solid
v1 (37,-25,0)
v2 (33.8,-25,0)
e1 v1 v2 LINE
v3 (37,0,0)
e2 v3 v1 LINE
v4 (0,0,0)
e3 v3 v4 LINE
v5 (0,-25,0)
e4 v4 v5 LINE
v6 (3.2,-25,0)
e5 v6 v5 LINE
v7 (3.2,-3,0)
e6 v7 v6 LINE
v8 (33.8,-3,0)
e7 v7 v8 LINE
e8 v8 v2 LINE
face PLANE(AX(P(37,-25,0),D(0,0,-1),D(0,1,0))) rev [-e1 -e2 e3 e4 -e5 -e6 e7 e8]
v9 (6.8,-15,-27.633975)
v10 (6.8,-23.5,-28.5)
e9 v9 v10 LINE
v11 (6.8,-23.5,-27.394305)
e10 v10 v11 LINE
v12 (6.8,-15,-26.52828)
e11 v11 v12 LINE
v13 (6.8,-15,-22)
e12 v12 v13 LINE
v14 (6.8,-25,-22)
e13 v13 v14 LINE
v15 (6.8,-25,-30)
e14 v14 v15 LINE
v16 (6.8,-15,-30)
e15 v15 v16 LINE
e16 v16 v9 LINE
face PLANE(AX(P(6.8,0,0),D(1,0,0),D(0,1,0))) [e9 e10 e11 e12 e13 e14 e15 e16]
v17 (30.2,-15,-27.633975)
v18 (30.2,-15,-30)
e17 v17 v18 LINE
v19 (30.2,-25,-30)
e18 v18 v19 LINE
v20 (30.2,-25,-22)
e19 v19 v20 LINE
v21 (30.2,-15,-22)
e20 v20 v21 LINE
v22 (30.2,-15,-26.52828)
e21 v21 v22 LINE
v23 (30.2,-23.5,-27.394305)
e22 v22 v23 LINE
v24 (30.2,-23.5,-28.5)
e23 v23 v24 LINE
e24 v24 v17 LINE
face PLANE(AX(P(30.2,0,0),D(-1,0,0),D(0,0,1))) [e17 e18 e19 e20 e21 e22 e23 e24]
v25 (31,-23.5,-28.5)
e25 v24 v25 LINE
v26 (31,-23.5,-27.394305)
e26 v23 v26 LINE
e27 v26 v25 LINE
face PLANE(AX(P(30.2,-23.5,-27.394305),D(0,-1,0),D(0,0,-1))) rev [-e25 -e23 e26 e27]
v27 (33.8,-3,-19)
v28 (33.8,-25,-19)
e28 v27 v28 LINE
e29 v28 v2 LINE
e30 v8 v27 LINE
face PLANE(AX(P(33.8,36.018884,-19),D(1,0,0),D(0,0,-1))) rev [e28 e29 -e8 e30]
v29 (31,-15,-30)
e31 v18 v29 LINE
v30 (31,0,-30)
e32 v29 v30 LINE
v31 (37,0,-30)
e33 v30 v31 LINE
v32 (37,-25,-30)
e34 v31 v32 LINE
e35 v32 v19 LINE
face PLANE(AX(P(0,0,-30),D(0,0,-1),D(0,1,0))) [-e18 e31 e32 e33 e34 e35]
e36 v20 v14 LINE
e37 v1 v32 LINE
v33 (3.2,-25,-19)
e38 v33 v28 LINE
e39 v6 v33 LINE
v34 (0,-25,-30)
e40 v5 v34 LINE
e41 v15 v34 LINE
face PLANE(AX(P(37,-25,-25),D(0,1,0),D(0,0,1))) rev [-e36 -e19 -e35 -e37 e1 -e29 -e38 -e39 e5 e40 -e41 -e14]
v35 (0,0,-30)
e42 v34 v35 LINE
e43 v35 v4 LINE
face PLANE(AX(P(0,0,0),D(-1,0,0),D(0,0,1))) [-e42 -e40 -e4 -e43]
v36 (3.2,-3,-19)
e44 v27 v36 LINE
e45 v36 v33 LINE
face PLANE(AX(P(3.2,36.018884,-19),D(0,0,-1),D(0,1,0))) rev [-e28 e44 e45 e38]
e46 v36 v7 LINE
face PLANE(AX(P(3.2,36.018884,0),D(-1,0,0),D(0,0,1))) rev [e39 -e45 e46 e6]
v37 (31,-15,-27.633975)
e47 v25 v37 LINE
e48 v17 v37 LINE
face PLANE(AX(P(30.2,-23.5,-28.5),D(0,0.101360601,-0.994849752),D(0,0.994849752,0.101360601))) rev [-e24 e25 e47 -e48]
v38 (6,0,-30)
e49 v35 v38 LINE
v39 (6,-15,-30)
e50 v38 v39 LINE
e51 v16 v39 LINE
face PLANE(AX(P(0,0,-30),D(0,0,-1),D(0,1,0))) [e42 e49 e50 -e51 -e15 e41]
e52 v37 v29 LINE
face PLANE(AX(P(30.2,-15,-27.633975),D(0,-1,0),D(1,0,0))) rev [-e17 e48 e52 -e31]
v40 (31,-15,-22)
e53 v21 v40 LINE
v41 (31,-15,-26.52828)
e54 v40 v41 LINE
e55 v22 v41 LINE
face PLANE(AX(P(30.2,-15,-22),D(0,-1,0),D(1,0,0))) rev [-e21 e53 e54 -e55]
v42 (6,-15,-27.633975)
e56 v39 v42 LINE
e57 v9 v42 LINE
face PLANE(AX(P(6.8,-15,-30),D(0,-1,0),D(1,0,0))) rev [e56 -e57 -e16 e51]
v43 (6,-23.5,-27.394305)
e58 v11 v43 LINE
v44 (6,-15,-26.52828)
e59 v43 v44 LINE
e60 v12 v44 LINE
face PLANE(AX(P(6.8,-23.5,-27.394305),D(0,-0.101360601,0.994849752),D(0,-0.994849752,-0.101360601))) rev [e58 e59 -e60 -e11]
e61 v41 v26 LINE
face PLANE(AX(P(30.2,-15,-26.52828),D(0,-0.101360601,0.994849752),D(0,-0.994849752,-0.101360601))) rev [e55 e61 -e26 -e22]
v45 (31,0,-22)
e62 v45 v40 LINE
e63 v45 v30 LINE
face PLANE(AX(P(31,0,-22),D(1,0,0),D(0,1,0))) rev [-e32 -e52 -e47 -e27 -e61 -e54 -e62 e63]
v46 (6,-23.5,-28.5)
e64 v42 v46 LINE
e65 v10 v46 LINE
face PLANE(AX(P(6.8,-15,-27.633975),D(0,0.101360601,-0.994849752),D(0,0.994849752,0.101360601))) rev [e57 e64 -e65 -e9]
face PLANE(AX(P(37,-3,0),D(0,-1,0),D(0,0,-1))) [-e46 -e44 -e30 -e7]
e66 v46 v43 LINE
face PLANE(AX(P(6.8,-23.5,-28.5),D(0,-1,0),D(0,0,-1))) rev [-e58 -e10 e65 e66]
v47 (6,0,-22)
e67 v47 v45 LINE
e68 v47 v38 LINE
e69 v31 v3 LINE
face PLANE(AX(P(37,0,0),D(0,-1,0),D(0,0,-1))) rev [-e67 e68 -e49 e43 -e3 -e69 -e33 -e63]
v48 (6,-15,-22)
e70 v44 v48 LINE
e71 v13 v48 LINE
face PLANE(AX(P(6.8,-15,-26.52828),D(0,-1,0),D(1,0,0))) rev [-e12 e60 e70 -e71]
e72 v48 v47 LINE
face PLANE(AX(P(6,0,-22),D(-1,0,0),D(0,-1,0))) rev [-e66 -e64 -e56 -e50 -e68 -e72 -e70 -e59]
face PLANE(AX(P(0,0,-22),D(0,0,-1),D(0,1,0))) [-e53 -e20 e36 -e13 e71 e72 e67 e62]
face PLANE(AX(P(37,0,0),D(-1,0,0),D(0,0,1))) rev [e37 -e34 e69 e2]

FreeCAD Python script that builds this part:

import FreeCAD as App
import Part
import Sketcher
from FreeCAD import Vector

doc = App.newDocument("Part")
body = doc.addObject("PartDesign::Body", "Body")

sketch1 = doc.addObject("Sketcher::SketchObject", "Sketch")
body.addObject(sketch1)
sketch1.AttachmentSupport = (doc.YZ_Plane, [""])
sketch1.MapMode = "FlatFace"
sketch1.addGeometry([
    Part.LineSegment(Vector(0, 0, 0), Vector(-25, 0, 0)),
    Part.LineSegment(Vector(-25, 0, 0), Vector(-25, -25, 0)),
    Part.LineSegment(Vector(-25, -25, 0), Vector(0, -25, 0)),
    Part.LineSegment(Vector(0, -25, 0), Vector(0, 0, 0)),
], False)
sketch1.addConstraint([
    Sketcher.Constraint("Coincident", 0, 2, 1, 1),
    Sketcher.Constraint("Coincident", 1, 2, 2, 1),
    Sketcher.Constraint("Coincident", 2, 2, 3, 1),
    Sketcher.Constraint("Coincident", 3, 2, 0, 1),
    Sketcher.Constraint("Horizontal", 0),
    Sketcher.Constraint("Vertical", 1),
    Sketcher.Constraint("Horizontal", 2),
    Sketcher.Constraint("Vertical", 3),
    Sketcher.Constraint("Coincident", 3, 2, -1, 1),
    Sketcher.Constraint("Equal", 2, 1),
    Sketcher.Constraint("DistanceX", 0, 2, 0, 1, 25.0),
])
pad1 = doc.addObject("PartDesign::Pad", "Pad")
body.addObject(pad1)
pad1.Profile = sketch1
pad1.Length = 37

sketch2 = doc.addObject("Sketcher::SketchObject", "Sketch001")
body.addObject(sketch2)
sketch2.AttachmentSupport = (doc.XZ_Plane, [""])
sketch2.MapMode = "FlatFace"
sketch2.AttachmentOffset = App.Placement(Vector(0, 0, 25), App.Rotation())
sketch2.addGeometry([
    Part.LineSegment(Vector(3.2, 0, 0), Vector(3.2, -19, 0)),
    Part.LineSegment(Vector(3.2, -19, 0), Vector(33.8, -19, 0)),
    Part.LineSegment(Vector(33.8, -19, 0), Vector(33.8, 0, 0)),
    Part.LineSegment(Vector(33.8, 0, 0), Vector(3.2, 0, 0)),
], False)
sketch2.addConstraint([
    Sketcher.Constraint("Coincident", 0, 2, 1, 1),
    Sketcher.Constraint("Coincident", 1, 2, 2, 1),
    Sketcher.Constraint("Coincident", 2, 2, 3, 1),
    Sketcher.Constraint("Coincident", 3, 2, 0, 1),
    Sketcher.Constraint("Vertical", 0),
    Sketcher.Constraint("Horizontal", 1),
    Sketcher.Constraint("Vertical", 2),
    Sketcher.Constraint("Horizontal", 3),
    Sketcher.Constraint("PointOnObject", 2, 2, -1),
    Sketcher.Constraint("DistanceY", 0, 2, 0, 1, 19.0),
    Sketcher.Constraint("DistanceX", 1, 1, 1, 2, 30.6),
    Sketcher.Constraint("DistanceX", -1, 1, 0, 2, 3.2),
])
pocket1 = doc.addObject("PartDesign::Pocket", "Pocket")
body.addObject(pocket1)
pocket1.Profile = sketch2
pocket1.Length = 22

sketch3 = doc.addObject("Sketcher::SketchObject", "Sketch002")
body.addObject(sketch3)
sketch3.AttachmentSupport = (doc.XY_Plane, [""])
sketch3.MapMode = "FlatFace"
sketch3.AttachmentOffset = App.Placement(Vector(0, 0, -25), App.Rotation())
sketch3.addGeometry([
    Part.LineSegment(Vector(31, 0, 0), Vector(31, -25, 0)),
    Part.LineSegment(Vector(31, -25, 0), Vector(6, -25, 0)),
    Part.LineSegment(Vector(6, -25, 0), Vector(6, 0, 0)),
    Part.LineSegment(Vector(6, 0, 0), Vector(31, 0, 0)),
], False)
sketch3.addConstraint([
    Sketcher.Constraint("Coincident", 0, 2, 1, 1),
    Sketcher.Constraint("Coincident", 1, 2, 2, 1),
    Sketcher.Constraint("Coincident", 2, 2, 3, 1),
    Sketcher.Constraint("Coincident", 3, 2, 0, 1),
    Sketcher.Constraint("Vertical", 0),
    Sketcher.Constraint("Horizontal", 1),
    Sketcher.Constraint("Vertical", 2),
    Sketcher.Constraint("Horizontal", 3),
    Sketcher.Constraint("PointOnObject", 2, 2, -1),
    Sketcher.Constraint("Equal", 3, 0),
    Sketcher.Constraint("DistanceX", 1, 2, 1, 1, 25.0),
    Sketcher.Constraint("DistanceX", -1, 1, 0, 2, 31.0),
])
pocket2 = doc.addObject("PartDesign::Pocket", "Pocket001")
body.addObject(pocket2)
pocket2.Profile = sketch3
pocket2.Length = 3
pocket2.Reversed = True

sketch4 = doc.addObject("Sketcher::SketchObject", "Sketch003")
body.addObject(sketch4)
sketch4.AttachmentSupport = (doc.XY_Plane, [""])
sketch4.MapMode = "FlatFace"
sketch4.AttachmentOffset = App.Placement(Vector(0, 0, -25), App.Rotation())
sketch4.addGeometry([
    Part.LineSegment(Vector(37, 0, 0), Vector(37, -25, 0)),
    Part.LineSegment(Vector(37, -25, 0), Vector(31, -25, 0)),
    Part.LineSegment(Vector(31, -25, 0), Vector(31, 0, 0)),
    Part.LineSegment(Vector(31, 0, 0), Vector(37, 0, 0)),
    Part.LineSegment(Vector(6, 0, 0), Vector(6, -25, 0)),
    Part.LineSegment(Vector(6, -25, 0), Vector(0, -25, 0)),
    Part.LineSegment(Vector(0, -25, 0), Vector(0, 0, 0)),
    Part.LineSegment(Vector(0, 0, 0), Vector(6, 0, 0)),
], False)
sketch4.addConstraint([
    Sketcher.Constraint("Coincident", 0, 2, 1, 1),
    Sketcher.Constraint("Coincident", 1, 2, 2, 1),
    Sketcher.Constraint("Coincident", 2, 2, 3, 1),
    Sketcher.Constraint("Coincident", 3, 2, 0, 1),
    Sketcher.Constraint("Coincident", 4, 2, 5, 1),
    Sketcher.Constraint("Coincident", 5, 2, 6, 1),
    Sketcher.Constraint("Coincident", 6, 2, 7, 1),
    Sketcher.Constraint("Coincident", 7, 2, 4, 1),
    Sketcher.Constraint("Vertical", 0),
    Sketcher.Constraint("Horizontal", 1),
    Sketcher.Constraint("Vertical", 2),
    Sketcher.Constraint("Horizontal", 3),
    Sketcher.Constraint("Vertical", 4),
    Sketcher.Constraint("Horizontal", 5),
    Sketcher.Constraint("Vertical", 6),
    Sketcher.Constraint("Horizontal", 7),
    Sketcher.Constraint("Coincident", 6, 2, -1, 1),
    Sketcher.Constraint("PointOnObject", 2, 2, -1),
    Sketcher.Constraint("Horizontal", 1, 2, 4, 2),
    Sketcher.Constraint("Equal", 3, 5),
    Sketcher.Constraint("DistanceX", 1, 2, 1, 1, 6.0),
    Sketcher.Constraint("DistanceY", 0, 2, 0, 1, 25.0),
    Sketcher.Constraint("DistanceX", -1, 1, 0, 2, 37.0),
])
pad2 = doc.addObject("PartDesign::Pad", "Pad001")
body.addObject(pad2)
pad2.Profile = sketch4
pad2.Length = 5
pad2.Reversed = True

sketch5 = doc.addObject("Sketcher::SketchObject", "Sketch004")
body.addObject(sketch5)
sketch5.AttachmentSupport = (doc.YZ_Plane, [""])
sketch5.MapMode = "FlatFace"
sketch5.AttachmentOffset = App.Placement(Vector(0, 0, 6), App.Rotation())
sketch5.addGeometry([
    Part.LineSegment(Vector(-15, -30, 0), Vector(-15, -27.633975, 0)),
    Part.LineSegment(Vector(-15, -27.633975, 0), Vector(-23.5, -28.5, 0)),
    Part.LineSegment(Vector(-23.5, -28.5, 0), Vector(-23.5, -27.394305, 0)),
    Part.LineSegment(Vector(-23.5, -27.394305, 0), Vector(-15, -26.52828, 0)),
    Part.LineSegment(Vector(-15, -26.52828, 0), Vector(-15, -22, 0)),
    Part.LineSegment(Vector(-15, -22, 0), Vector(-25, -22, 0)),
    Part.LineSegment(Vector(-25, -22, 0), Vector(-25, -30, 0)),
    Part.LineSegment(Vector(-25, -30, 0), Vector(-15, -30, 0)),
], False)
sketch5.addConstraint([
    Sketcher.Constraint("Coincident", 0, 2, 1, 1),
    Sketcher.Constraint("Coincident", 1, 2, 2, 1),
    Sketcher.Constraint("Coincident", 2, 2, 3, 1),
    Sketcher.Constraint("Coincident", 3, 2, 4, 1),
    Sketcher.Constraint("Coincident", 4, 2, 5, 1),
    Sketcher.Constraint("Coincident", 5, 2, 6, 1),
    Sketcher.Constraint("Coincident", 6, 2, 7, 1),
    Sketcher.Constraint("Coincident", 7, 2, 0, 1),
    Sketcher.Constraint("Vertical", 0),
    Sketcher.Constraint("Vertical", 2),
    Sketcher.Constraint("Vertical", 4),
    Sketcher.Constraint("Horizontal", 5),
    Sketcher.Constraint("Vertical", 6),
    Sketcher.Constraint("Horizontal", 7),
    Sketcher.Constraint("Parallel", 1, 3),
    Sketcher.Constraint("Vertical", 0, 2, 3, 2),
    Sketcher.Constraint("DistanceX", 5, 2, 5, 1, 10.0),
    Sketcher.Constraint("DistanceY", 6, 2, 6, 1, 8.0),
    Sketcher.Constraint("DistanceX", 0, 2, -1, 1, 15.0),
    Sketcher.Constraint("DistanceY", 4, 2, -1, 1, 22.0),
    Sketcher.Constraint("DistanceX", 1, 2, -1, 1, 23.5),
    Sketcher.Constraint("DistanceY", 1, 2, -1, 1, 28.5),
    Sketcher.Constraint("DistanceY", 4, 1, 4, 2, 4.52828),
    Sketcher.Constraint("DistanceY", 0, 1, 0, 2, 2.366025),
])
pad3 = doc.addObject("PartDesign::Pad", "Pad002")
body.addObject(pad3)
pad3.Profile = sketch5
pad3.Length = 0.8

sketch6 = doc.addObject("Sketcher::SketchObject", "Sketch005")
body.addObject(sketch6)
sketch6.AttachmentSupport = (doc.YZ_Plane, [""])
sketch6.MapMode = "FlatFace"
sketch6.AttachmentOffset = App.Placement(Vector(0, 0, 31), App.Rotation())
sketch6.addGeometry([
    Part.LineSegment(Vector(-15, -30, 0), Vector(-25, -30, 0)),
    Part.LineSegment(Vector(-25, -30, 0), Vector(-25, -22, 0)),
    Part.LineSegment(Vector(-25, -22, 0), Vector(-15, -22, 0)),
    Part.LineSegment(Vector(-15, -22, 0), Vector(-15, -26.52828, 0)),
    Part.LineSegment(Vector(-15, -26.52828, 0), Vector(-23.5, -27.394305, 0)),
    Part.LineSegment(Vector(-23.5, -27.394305, 0), Vector(-23.5, -28.5, 0)),
    Part.LineSegment(Vector(-23.5, -28.5, 0), Vector(-15, -27.633975, 0)),
    Part.LineSegment(Vector(-15, -27.633975, 0), Vector(-15, -30, 0)),
], False)
sketch6.addConstraint([
    Sketcher.Constraint("Coincident", 0, 2, 1, 1),
    Sketcher.Constraint("Coincident", 1, 2, 2, 1),
    Sketcher.Constraint("Coincident", 2, 2, 3, 1),
    Sketcher.Constraint("Coincident", 3, 2, 4, 1),
    Sketcher.Constraint("Coincident", 4, 2, 5, 1),
    Sketcher.Constraint("Coincident", 5, 2, 6, 1),
    Sketcher.Constraint("Coincident", 6, 2, 7, 1),
    Sketcher.Constraint("Coincident", 7, 2, 0, 1),
    Sketcher.Constraint("Horizontal", 0),
    Sketcher.Constraint("Vertical", 1),
    Sketcher.Constraint("Horizontal", 2),
    Sketcher.Constraint("Vertical", 3),
    Sketcher.Constraint("Vertical", 5),
    Sketcher.Constraint("Vertical", 7),
    Sketcher.Constraint("Parallel", 4, 6),
    Sketcher.Constraint("Vertical", 3, 2, 6, 2),
    Sketcher.Constraint("DistanceX", 0, 2, 0, 1, 10.0),
    Sketcher.Constraint("DistanceY", 1, 1, 1, 2, 8.0),
    Sketcher.Constraint("DistanceX", 0, 2, -1, 1, 25.0),
    Sketcher.Constraint("DistanceY", 0, 2, -1, 1, 30.0),
    Sketcher.Constraint("DistanceX", 4, 2, -1, 1, 23.5),
    Sketcher.Constraint("DistanceY", 5, 2, -1, 1, 28.5),
    Sketcher.Constraint("DistanceY", 3, 2, 3, 1, 4.52828),
    Sketcher.Constraint("DistanceY", 5, 2, 5, 1, 1.105695),
])
pad4 = doc.addObject("PartDesign::Pad", "Pad003")
body.addObject(pad4)
pad4.Profile = sketch6
pad4.Length = 0.8
pad4.Reversed = True

doc.recompute()
